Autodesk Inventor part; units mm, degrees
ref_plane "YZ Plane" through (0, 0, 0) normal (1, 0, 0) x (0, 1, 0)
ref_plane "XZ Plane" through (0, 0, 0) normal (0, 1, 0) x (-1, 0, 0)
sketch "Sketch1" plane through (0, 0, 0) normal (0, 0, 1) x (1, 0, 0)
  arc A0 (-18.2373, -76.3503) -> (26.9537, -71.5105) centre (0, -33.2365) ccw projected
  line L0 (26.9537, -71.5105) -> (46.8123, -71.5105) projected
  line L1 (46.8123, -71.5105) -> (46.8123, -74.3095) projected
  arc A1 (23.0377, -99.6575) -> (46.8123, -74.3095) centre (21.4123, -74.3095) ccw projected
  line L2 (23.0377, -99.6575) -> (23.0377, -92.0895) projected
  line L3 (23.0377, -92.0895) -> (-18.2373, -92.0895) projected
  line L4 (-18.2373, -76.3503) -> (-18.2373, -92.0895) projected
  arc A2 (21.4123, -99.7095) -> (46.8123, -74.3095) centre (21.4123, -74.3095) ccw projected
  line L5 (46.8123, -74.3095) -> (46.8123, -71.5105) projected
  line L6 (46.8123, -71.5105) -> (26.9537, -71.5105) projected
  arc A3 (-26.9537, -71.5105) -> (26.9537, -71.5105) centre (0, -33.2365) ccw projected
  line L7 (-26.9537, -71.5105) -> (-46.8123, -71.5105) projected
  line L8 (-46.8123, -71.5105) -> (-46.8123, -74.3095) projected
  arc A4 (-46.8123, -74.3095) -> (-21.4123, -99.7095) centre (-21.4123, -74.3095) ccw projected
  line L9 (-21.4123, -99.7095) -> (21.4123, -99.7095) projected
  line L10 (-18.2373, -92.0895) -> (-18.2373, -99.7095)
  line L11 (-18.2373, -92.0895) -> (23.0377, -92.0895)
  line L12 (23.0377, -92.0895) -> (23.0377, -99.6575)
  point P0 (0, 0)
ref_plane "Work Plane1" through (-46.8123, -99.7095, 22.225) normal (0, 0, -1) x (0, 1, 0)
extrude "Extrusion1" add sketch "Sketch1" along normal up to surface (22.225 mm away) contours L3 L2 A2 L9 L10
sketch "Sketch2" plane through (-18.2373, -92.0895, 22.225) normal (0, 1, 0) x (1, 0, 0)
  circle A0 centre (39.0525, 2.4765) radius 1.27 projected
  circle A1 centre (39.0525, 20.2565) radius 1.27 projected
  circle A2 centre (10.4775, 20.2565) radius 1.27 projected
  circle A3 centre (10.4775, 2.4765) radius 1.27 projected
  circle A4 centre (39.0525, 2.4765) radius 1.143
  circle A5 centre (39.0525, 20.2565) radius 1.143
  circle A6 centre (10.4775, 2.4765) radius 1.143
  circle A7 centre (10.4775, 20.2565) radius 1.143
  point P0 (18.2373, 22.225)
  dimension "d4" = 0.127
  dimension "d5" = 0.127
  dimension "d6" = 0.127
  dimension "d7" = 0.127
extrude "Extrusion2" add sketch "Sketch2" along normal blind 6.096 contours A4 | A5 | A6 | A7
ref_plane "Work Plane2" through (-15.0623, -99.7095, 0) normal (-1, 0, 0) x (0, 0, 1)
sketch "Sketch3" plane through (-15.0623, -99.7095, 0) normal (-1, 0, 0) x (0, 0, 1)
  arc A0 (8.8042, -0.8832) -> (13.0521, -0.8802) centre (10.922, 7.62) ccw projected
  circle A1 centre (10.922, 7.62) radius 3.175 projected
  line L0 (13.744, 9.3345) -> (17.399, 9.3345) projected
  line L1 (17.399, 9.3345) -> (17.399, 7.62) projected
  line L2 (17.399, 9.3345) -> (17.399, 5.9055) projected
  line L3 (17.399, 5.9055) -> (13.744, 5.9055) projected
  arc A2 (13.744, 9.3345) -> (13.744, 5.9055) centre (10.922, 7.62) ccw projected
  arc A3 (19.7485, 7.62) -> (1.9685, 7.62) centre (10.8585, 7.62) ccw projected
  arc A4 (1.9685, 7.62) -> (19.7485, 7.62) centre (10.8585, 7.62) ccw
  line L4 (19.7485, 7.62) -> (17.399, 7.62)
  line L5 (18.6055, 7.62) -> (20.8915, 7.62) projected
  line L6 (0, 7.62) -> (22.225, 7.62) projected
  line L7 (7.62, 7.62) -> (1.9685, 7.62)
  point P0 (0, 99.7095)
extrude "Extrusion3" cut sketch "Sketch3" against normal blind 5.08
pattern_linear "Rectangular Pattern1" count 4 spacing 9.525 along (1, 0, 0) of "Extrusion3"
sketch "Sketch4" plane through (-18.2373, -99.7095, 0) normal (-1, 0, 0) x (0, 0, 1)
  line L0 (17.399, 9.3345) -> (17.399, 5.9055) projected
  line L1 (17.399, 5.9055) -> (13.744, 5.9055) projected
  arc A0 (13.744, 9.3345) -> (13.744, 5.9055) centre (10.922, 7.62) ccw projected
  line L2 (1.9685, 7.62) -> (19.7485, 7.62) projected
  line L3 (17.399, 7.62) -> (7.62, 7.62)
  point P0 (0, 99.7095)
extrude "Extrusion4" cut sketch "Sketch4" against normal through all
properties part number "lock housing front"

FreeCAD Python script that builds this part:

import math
import FreeCAD as App
import Part
import Sketcher
Q = App.Units.Quantity

doc = App.newDocument("Part")
body = doc.addObject("PartDesign::Body", "Body")

sketch1 = body.newObject("Sketcher::SketchObject", "Sketch")
sketch1.AttachmentSupport = (doc.getObject("XY_Plane"), [""])
sketch1.MapMode = "FlatFace"
sketch1.addGeometry([
    Part.LineSegment(App.Vector(23, -92.1, 0), App.Vector(-18.2, -92.1, 0)),
    Part.LineSegment(App.Vector(-18.2, -92.1, 0), App.Vector(-18.2, -99.7, 0)),
    Part.LineSegment(App.Vector(-18.2, -99.7, 0), App.Vector(21.4, -99.7, 0)),
    Part.ArcOfCircle(Part.Circle(App.Vector(21.4, -74.3, 0), App.Vector(0, 0, 1), 25.4), math.radians(-90), math.radians(-86.33)),
    Part.LineSegment(App.Vector(23, -99.7, 0), App.Vector(23, -92.1, 0)),
], False)
sketch1.addConstraint([
    Sketcher.Constraint("Coincident", 0, 2, 1, 1),
    Sketcher.Constraint("Coincident", 1, 2, 2, 1),
    Sketcher.Constraint("Tangent", 2, 2, 3, 1),
    Sketcher.Constraint("Coincident", 3, 2, 4, 1),
    Sketcher.Constraint("Coincident", 4, 2, 0, 1),
    Sketcher.Constraint("Horizontal", 0),
    Sketcher.Constraint("Vertical", 1),
    Sketcher.Constraint("Horizontal", 2),
    Sketcher.Constraint("Vertical", 4),
    Sketcher.Constraint("Radius", 3, Q("1 in")),
    Sketcher.Constraint("DistanceY", 1, 2, 1, 1, Q("0.3 in")),
    Sketcher.Constraint("DistanceX", 0, 2, 0, 1, Q("1.625 in")),
    Sketcher.Constraint("DistanceX", 2, 1, 2, 2, Q("1.561 in")),
    Sketcher.Constraint("DistanceX", -1, 1, 3, 3, Q("0.843 in")),
    Sketcher.Constraint("DistanceY", 3, 3, -1, 1, Q("74.3095 mm")),
])
pad1 = body.newObject("PartDesign::Pad", "Pad")
pad1.Profile = sketch1
pad1.Length = Q("0.875 in")

sketch2 = body.newObject("Sketcher::SketchObject", "Sketch001")
sketch2.AttachmentSupport = (doc.getObject("XZ_Plane"), [""])
sketch2.MapMode = "FlatFace"
sketch2.AttachmentOffset = App.Placement(App.Vector(0, 0, 92.0895), App.Rotation())
sketch2.addGeometry([
    Part.Circle(App.Vector(20.8, 19.7, 0), App.Vector(0, 0, 1), 1.1),
    Part.Circle(App.Vector(20.8, 2, 0), App.Vector(0, 0, 1), 1.1),
    Part.Circle(App.Vector(-7.8, 19.7, 0), App.Vector(0, 0, 1), 1.1),
    Part.Circle(App.Vector(-7.8, 2, 0), App.Vector(0, 0, 1), 1.1),
], False)
sketch2.addConstraint([
    Sketcher.Constraint("Equal", 0, 1),
    Sketcher.Constraint("Equal", 1, 2),
    Sketcher.Constraint("Equal", 2, 3),
    Sketcher.Constraint("Horizontal", 0, 3, 2, 3),
    Sketcher.Constraint("Horizontal", 1, 3, 3, 3),
    Sketcher.Constraint("Vertical", 0, 3, 1, 3),
    Sketcher.Constraint("Vertical", 2, 3, 3, 3),
    Sketcher.Constraint("Diameter", 0, Q("0.09 in")),
    Sketcher.Constraint("DistanceY", 1, 3, 0, 3, Q("0.7 in")),
    Sketcher.Constraint("DistanceX", 2, 3, 0, 3, Q("1.125 in")),
    Sketcher.Constraint("DistanceX", -1, 1, 0, 3, Q("0.8195 in")),
    Sketcher.Constraint("DistanceY", -1, 1, 0, 3, Q("0.7775 in")),
])
pad2 = body.newObject("PartDesign::Pad", "Pad001")
pad2.Profile = sketch2
pad2.Length = Q("0.24 in")
pad2.Reversed = True

sketch3 = body.newObject("Sketcher::SketchObject", "Sketch002")
sketch3.AttachmentSupport = (doc.getObject("YZ_Plane"), [""])
sketch3.MapMode = "FlatFace"
sketch3.AttachmentOffset = App.Placement(App.Vector(0, 0, -0.5930039 * 25.4), App.Rotation())
sketch3.addGeometry(Part.Circle(App.Vector(-92, 11, 0), App.Vector(0, 0, 1), 9), False)
sketch3.addConstraint([
    Sketcher.Constraint("Diameter", 0, Q("0.7 in")),
    Sketcher.Constraint("DistanceY", -1, 1, 0, 3, Q("0.4275 in")),
    Sketcher.Constraint("DistanceX", 0, 3, -1, 1, Q("92.0895 mm")),
])
pocket1 = body.newObject("PartDesign::Pocket", "Pocket")
pocket1.Profile = sketch3
pocket1.Length = Q("0.2 in")
pocket1.Reversed = True
doc.recompute()

linearpattern = body.newObject("PartDesign::LinearPattern", "LinearPattern")
linearpattern.Originals = [pocket1]
linearpattern.Direction = (doc.getObject("X_Axis"), [""])
linearpattern.Mode = "offset"
linearpattern.Offset = Q("0.375 in")
linearpattern.Occurrences = 4
body.Tip = linearpattern

sketch4 = body.newObject("Sketcher::SketchObject", "Sketch003")
sketch4.AttachmentSupport = (doc.getObject("YZ_Plane"), [""])
sketch4.MapMode = "FlatFace"
sketch4.AttachmentOffset = App.Placement(App.Vector(0, 0, -0.7180039 * 25.4), App.Rotation())
sketch4.addGeometry([
    Part.LineSegment(App.Vector(-93.8, 17.4, 0), App.Vector(-92.1, 17.4, 0)),
    Part.LineSegment(App.Vector(-92.1, 17.4, 0), App.Vector(-92.1, 7.6, 0)),
    Part.ArcOfCircle(Part.Circle(App.Vector(-92.1, 10.9, 0), App.Vector(0, 0, 1), 3.3), math.radians(121), math.radians(270)),
    Part.LineSegment(App.Vector(-93.8, 13.7, 0), App.Vector(-93.8, 17.4, 0)),
], False)
sketch4.addConstraint([
    Sketcher.Constraint("Coincident", 0, 2, 1, 1),
    Sketcher.Constraint("Coincident", 1, 2, 2, 2),
    Sketcher.Constraint("Coincident", 2, 1, 3, 1),
    Sketcher.Constraint("Coincident", 3, 2, 0, 1),
    Sketcher.Constraint("Horizontal", 0),
    Sketcher.Constraint("Vertical", 1),
    Sketcher.Constraint("Vertical", 3),
    Sketcher.Constraint("Vertical", 2, 3, 0, 2),
    Sketcher.Constraint("Radius", 2, Q("0.13 in")),
    Sketcher.Constraint("DistanceY", -1, 1, 1, 2, Q("0.3 in")),
    Sketcher.Constraint("DistanceY", 1, 2, 1, 1, Q("0.385 in")),
    Sketcher.Constraint("DistanceX", 0, 1, 0, 2, Q("0.0675 in")),
    Sketcher.Constraint("DistanceX", 2, 3, -1, 1, Q("92.0895 mm")),
])
pocket2 = body.newObject("PartDesign::Pocket", "Pocket001")
pocket2.Profile = sketch4
pocket2.Type = "ThroughAll"
pocket2.Reversed = True

doc.recompute()
